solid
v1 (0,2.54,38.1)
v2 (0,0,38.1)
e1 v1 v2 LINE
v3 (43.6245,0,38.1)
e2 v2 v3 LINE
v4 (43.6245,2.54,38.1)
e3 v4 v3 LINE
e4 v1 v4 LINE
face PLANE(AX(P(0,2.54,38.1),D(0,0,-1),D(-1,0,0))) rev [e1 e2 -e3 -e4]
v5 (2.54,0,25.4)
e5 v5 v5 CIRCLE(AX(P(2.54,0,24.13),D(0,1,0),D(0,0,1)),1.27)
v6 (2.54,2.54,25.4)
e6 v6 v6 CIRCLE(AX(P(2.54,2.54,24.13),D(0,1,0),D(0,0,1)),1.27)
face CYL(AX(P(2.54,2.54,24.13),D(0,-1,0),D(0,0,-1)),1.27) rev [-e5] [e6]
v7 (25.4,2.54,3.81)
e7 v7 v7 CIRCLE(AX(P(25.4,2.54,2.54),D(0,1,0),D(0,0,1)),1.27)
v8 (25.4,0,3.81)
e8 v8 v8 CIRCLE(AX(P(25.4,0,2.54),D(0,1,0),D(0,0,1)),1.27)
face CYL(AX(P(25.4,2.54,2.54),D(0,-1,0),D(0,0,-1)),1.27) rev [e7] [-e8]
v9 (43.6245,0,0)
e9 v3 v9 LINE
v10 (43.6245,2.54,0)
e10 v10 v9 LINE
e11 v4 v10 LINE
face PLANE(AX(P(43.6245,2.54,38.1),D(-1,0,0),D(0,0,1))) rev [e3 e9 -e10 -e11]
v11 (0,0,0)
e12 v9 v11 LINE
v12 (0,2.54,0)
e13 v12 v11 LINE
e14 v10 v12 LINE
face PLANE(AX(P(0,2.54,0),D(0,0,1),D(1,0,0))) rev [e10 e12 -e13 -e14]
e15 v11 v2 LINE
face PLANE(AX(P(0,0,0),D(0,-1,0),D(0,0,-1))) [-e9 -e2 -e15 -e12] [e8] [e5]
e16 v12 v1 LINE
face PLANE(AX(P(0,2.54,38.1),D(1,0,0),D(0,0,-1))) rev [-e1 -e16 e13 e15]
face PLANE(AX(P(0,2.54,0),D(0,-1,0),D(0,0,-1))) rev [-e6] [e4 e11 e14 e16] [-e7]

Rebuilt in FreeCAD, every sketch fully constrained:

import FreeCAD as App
import Part
import Sketcher
from FreeCAD import Vector
Q = App.Units.Quantity

doc = App.newDocument("Part")
params = doc.addObject("Spreadsheet::Sheet", "Params")
for row, (alias, value) in enumerate([
    ("sketch1_diameter", "0.1 in"),
    ("sketch1_height", "1.5 in"),
    ("pad1_length", "0.1 in"),
], start=1):
    params.set(f"A{row}", alias)
    params.set(f"B{row}", "=" + value)
    params.setAlias(f"B{row}", alias)

body = doc.addObject("PartDesign::Body", "Body")

sketch1 = body.newObject("Sketcher::SketchObject", "Sketch")
sketch1.AttachmentSupport = (doc.getObject("XZ_Plane"), [""])
sketch1.MapMode = "FlatFace"
sketch1.addGeometry([
    Part.LineSegment(Vector(0, 0, 0), Vector(0, 38.1, 0)),
    Part.LineSegment(Vector(0, 38.1, 0), Vector(43.6245, 38.1, 0)),
    Part.LineSegment(Vector(43.6245, 38.1, 0), Vector(43.6245, 0, 0)),
    Part.LineSegment(Vector(43.6245, 0, 0), Vector(0, 0, 0)),
    Part.Circle(Vector(2.54, 24.13, 0), Vector(0, 0, 1), 1.27),
    Part.Circle(Vector(25.4, 2.54, 0), Vector(0, 0, 1), 1.27),
], False)
sketch1.addConstraint([
    Sketcher.Constraint("Coincident", 0, 2, 1, 1),
    Sketcher.Constraint("Coincident", 1, 2, 2, 1),
    Sketcher.Constraint("Coincident", 2, 2, 3, 1),
    Sketcher.Constraint("Coincident", 3, 2, 0, 1),
    Sketcher.Constraint("Vertical", 0),
    Sketcher.Constraint("Horizontal", 1),
    Sketcher.Constraint("Vertical", 2),
    Sketcher.Constraint("Horizontal", 3),
    Sketcher.Constraint("Coincident", 3, 2, -1, 1),
    Sketcher.Constraint("Equal", 4, 5),
    Sketcher.Constraint("Diameter", 4, Q("0.1 in")),
    Sketcher.Constraint("DistanceY", 0, 1, 0, 2, Q("1.5 in")),
    Sketcher.Constraint("DistanceX", -1, 1, 5, 3, Q("1 in")),
    Sketcher.Constraint("DistanceX", -1, 1, 4, 3, Q("0.1 in")),
    Sketcher.Constraint("DistanceY", -1, 1, 5, 3, Q("0.1 in")),
    Sketcher.Constraint("DistanceY", -1, 1, 4, 3, Q("0.95 in")),
    Sketcher.Constraint("DistanceX", 1, 1, 1, 2, Q("1.7175 in")),
])
sketch1.setExpression("Constraints[10]", "Params.sketch1_diameter")
sketch1.setExpression("Constraints[11]", "Params.sketch1_height")
pad1 = body.newObject("PartDesign::Pad", "Pad")
pad1.Profile = sketch1
pad1.setExpression("Length", "Params.pad1_length")
pad1.Reversed = True

doc.recompute()
